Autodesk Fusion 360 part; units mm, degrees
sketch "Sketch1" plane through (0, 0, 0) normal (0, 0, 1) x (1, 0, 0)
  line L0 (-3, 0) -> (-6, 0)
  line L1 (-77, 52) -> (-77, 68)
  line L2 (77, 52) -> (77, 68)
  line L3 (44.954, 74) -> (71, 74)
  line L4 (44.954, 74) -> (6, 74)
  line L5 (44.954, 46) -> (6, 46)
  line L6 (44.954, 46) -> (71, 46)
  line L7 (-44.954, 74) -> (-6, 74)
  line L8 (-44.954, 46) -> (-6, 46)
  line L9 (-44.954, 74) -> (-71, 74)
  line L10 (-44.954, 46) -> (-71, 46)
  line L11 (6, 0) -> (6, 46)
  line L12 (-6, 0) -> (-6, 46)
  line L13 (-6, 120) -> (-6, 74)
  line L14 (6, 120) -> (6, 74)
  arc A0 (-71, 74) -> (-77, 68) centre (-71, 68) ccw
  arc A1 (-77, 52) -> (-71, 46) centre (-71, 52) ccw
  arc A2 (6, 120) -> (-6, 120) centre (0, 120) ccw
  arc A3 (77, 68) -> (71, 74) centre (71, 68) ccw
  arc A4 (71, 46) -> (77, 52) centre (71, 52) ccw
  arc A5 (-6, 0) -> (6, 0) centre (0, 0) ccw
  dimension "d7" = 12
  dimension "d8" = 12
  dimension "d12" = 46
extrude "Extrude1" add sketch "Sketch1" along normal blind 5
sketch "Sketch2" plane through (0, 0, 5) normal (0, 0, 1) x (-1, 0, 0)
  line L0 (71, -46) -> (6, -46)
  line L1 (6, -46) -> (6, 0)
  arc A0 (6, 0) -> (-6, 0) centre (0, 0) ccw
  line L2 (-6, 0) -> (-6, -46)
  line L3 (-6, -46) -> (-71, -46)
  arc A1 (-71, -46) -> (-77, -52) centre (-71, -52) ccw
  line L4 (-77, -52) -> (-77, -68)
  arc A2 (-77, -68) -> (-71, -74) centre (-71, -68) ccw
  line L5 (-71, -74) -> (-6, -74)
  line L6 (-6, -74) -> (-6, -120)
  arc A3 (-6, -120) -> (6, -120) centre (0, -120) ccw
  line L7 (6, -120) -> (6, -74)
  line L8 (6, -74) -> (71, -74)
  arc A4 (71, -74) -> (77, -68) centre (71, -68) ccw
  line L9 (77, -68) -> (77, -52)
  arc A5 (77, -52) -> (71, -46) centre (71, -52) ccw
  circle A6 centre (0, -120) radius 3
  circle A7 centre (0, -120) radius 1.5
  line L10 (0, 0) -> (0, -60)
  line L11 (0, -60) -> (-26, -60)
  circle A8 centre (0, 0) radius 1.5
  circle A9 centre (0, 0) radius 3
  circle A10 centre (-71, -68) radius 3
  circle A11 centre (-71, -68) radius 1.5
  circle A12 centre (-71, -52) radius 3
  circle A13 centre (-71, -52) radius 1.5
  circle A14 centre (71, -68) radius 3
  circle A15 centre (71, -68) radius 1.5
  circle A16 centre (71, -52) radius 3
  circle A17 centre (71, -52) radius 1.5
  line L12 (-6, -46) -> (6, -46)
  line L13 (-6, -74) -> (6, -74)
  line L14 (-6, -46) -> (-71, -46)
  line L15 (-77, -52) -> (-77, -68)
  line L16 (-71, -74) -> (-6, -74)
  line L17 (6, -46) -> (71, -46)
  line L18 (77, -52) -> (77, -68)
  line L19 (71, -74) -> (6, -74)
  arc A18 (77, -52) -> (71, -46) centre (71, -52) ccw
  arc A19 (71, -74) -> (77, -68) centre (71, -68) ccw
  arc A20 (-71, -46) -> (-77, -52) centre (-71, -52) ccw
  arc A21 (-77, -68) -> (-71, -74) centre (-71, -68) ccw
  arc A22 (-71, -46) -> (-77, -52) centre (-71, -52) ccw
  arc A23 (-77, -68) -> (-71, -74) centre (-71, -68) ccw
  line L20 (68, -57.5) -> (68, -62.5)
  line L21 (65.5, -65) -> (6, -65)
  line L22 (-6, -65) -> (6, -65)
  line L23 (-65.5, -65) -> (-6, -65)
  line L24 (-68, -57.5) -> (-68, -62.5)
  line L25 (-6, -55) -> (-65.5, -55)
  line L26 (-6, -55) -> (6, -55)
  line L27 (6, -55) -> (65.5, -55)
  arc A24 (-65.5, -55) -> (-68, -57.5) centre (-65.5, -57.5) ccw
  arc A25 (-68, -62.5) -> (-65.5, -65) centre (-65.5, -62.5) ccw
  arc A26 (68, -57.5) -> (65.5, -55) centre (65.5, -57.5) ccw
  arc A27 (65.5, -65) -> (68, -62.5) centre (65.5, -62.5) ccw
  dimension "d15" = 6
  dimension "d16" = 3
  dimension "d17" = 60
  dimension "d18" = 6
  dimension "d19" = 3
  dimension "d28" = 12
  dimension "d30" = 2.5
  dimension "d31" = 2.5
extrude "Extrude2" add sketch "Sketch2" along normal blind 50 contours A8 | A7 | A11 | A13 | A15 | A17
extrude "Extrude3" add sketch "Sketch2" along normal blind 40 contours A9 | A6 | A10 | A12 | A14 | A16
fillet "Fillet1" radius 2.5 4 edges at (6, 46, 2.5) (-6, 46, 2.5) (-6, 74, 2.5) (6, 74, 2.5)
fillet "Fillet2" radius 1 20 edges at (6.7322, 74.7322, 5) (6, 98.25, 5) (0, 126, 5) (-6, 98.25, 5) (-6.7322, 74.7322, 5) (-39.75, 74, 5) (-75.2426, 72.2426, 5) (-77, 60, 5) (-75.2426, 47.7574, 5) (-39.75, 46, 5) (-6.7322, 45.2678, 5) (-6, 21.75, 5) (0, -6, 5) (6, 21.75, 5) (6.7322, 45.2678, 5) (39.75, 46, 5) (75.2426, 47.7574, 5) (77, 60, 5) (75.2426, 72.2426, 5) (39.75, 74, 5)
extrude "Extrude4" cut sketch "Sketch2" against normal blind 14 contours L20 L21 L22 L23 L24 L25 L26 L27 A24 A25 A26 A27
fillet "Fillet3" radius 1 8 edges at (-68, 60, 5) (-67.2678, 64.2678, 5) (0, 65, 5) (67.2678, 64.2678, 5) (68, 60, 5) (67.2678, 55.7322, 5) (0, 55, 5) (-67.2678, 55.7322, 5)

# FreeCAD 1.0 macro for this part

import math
import FreeCAD as App
import Part
import Sketcher
from FreeCAD import Vector


def edges_at(feature, points):
    """Names of the edges that pass closest to the given points."""
    edges = feature.Shape.Edges
    near = lambda p: min(range(len(edges)), key=lambda i: edges[i].distToShape(Part.Vertex(*p))[0])
    return sorted({f"Edge{near(p) + 1}" for p in points})

doc = App.newDocument("Part")
params = doc.addObject("Spreadsheet::Sheet", "Params")
for row, (alias, value) in enumerate([
    ("sketch1_radius", "6 mm"),
    ("sketch1_height", "46 mm"),
    ("sketch1_width", "65 mm"),
    ("sketch1_height2", "16 mm"),
    ("pad1_length", "5 mm"),
    ("sketch2_diameter", "3 mm"),
    ("pad2_length", "50 mm"),
    ("sketch3_diameter", "6 mm"),
    ("sketch3_diameter2", "3 mm"),
    ("pad3_length", "40 mm"),
    ("fillet_radius", "2.5 mm"),
    ("fillet2_radius", "1 mm"),
    ("sketch4_radius", "2.5 mm"),
    ("sketch4_width", "131 mm"),
    ("sketch4_height", "5 mm"),
    ("pocket1_length", "14 mm"),
    ("fillet3_radius", "1 mm"),
], start=1):
    params.set(f"A{row}", alias)
    params.set(f"B{row}", "=" + value)
    params.setAlias(f"B{row}", alias)

body = doc.addObject("PartDesign::Body", "Body")

sketch1 = body.newObject("Sketcher::SketchObject", "Sketch")
sketch1.AttachmentSupport = (doc.getObject("XY_Plane"), [""])
sketch1.MapMode = "FlatFace"
sketch1.addGeometry(Part.LineSegment(Vector(-77, 68, 0), Vector(-77, 52, 0)), False)
sketch1.addGeometry(Part.ArcOfCircle(Part.Circle(Vector(-71, 52, 0), Vector(0, 0, 1), 6), math.radians(180), math.radians(270)), False)
sketch1.addGeometry(Part.LineSegment(Vector(-71, 46, 0), Vector(-6, 46, 0)), False)
sketch1.addGeometry(Part.LineSegment(Vector(-6, 46, 0), Vector(-6, 0, 0)), False)
sketch1.addGeometry(Part.ArcOfCircle(Part.Circle(Vector(0, 0, 0), Vector(0, 0, 1), 6), math.radians(180), math.radians(360)), False)
sketch1.addGeometry(Part.LineSegment(Vector(6, 0, 0), Vector(6, 46, 0)), False)
sketch1.addGeometry(Part.LineSegment(Vector(6, 46, 0), Vector(71, 46, 0)), False)
sketch1.addGeometry(Part.ArcOfCircle(Part.Circle(Vector(71, 52, 0), Vector(0, 0, 1), 6), math.radians(-90), math.radians(0)), False)
sketch1.addGeometry(Part.LineSegment(Vector(77, 52, 0), Vector(77, 68, 0)), False)
sketch1.addGeometry(Part.ArcOfCircle(Part.Circle(Vector(71, 68, 0), Vector(0, 0, 1), 6), math.radians(0), math.radians(90)), False)
sketch1.addGeometry(Part.LineSegment(Vector(71, 74, 0), Vector(6, 74, 0)), False)
sketch1.addGeometry(Part.LineSegment(Vector(6, 74, 0), Vector(6, 120, 0)), False)
sketch1.addGeometry(Part.ArcOfCircle(Part.Circle(Vector(0, 120, 0), Vector(0, 0, 1), 6), math.radians(0), math.radians(180)), False)
sketch1.addGeometry(Part.LineSegment(Vector(-6, 120, 0), Vector(-6, 74, 0)), False)
sketch1.addGeometry(Part.LineSegment(Vector(-6, 74, 0), Vector(-71, 74, 0)), False)
sketch1.addGeometry(Part.ArcOfCircle(Part.Circle(Vector(-71, 68, 0), Vector(0, 0, 1), 6), math.radians(90), math.radians(180)), False)
sketch1.addConstraint(Sketcher.Constraint("Tangent", 0, 2, 1, 1))
sketch1.addConstraint(Sketcher.Constraint("Tangent", 1, 2, 2, 1))
sketch1.addConstraint(Sketcher.Constraint("Coincident", 2, 2, 3, 1))
sketch1.addConstraint(Sketcher.Constraint("Tangent", 3, 2, 4, 1))
sketch1.addConstraint(Sketcher.Constraint("Tangent", 4, 2, 5, 1))
sketch1.addConstraint(Sketcher.Constraint("Coincident", 5, 2, 6, 1))
sketch1.addConstraint(Sketcher.Constraint("Tangent", 6, 2, 7, 1))
sketch1.addConstraint(Sketcher.Constraint("Tangent", 7, 2, 8, 1))
sketch1.addConstraint(Sketcher.Constraint("Tangent", 8, 2, 9, 1))
sketch1.addConstraint(Sketcher.Constraint("Tangent", 9, 2, 10, 1))
sketch1.addConstraint(Sketcher.Constraint("Coincident", 10, 2, 11, 1))
sketch1.addConstraint(Sketcher.Constraint("Tangent", 11, 2, 12, 1))
sketch1.addConstraint(Sketcher.Constraint("Tangent", 12, 2, 13, 1))
sketch1.addConstraint(Sketcher.Constraint("Coincident", 13, 2, 14, 1))
sketch1.addConstraint(Sketcher.Constraint("Tangent", 14, 2, 15, 1))
sketch1.addConstraint(Sketcher.Constraint("Tangent", 15, 2, 0, 1))
sketch1.addConstraint(Sketcher.Constraint("Vertical", 0))
sketch1.addConstraint(Sketcher.Constraint("Horizontal", 2))
sketch1.addConstraint(Sketcher.Constraint("Vertical", 3))
sketch1.addConstraint(Sketcher.Constraint("Vertical", 5))
sketch1.addConstraint(Sketcher.Constraint("Horizontal", 6))
sketch1.addConstraint(Sketcher.Constraint("Vertical", 8))
sketch1.addConstraint(Sketcher.Constraint("Horizontal", 10))
sketch1.addConstraint(Sketcher.Constraint("Vertical", 11))
sketch1.addConstraint(Sketcher.Constraint("Vertical", 13))
sketch1.addConstraint(Sketcher.Constraint("Horizontal", 14))
sketch1.addConstraint(Sketcher.Constraint("Coincident", 4, 3, -1, 1))
sketch1.addConstraint(Sketcher.Constraint("Equal", 1, 4))
sketch1.addConstraint(Sketcher.Constraint("Equal", 4, 7))
sketch1.addConstraint(Sketcher.Constraint("Equal", 7, 9))
sketch1.addConstraint(Sketcher.Constraint("Equal", 9, 12))
sketch1.addConstraint(Sketcher.Constraint("Equal", 12, 15))
sketch1.addConstraint(Sketcher.Constraint("Symmetric", 1, 3, 7, 3, -2))
sketch1.addConstraint(Sketcher.Constraint("Symmetric", 10, 2, 13, 2, -2))
sketch1.addConstraint(Sketcher.Constraint("Equal", 5, 11))
sketch1.addConstraint(Sketcher.Constraint("Radius", 1, 6.0))
sketch1.addConstraint(Sketcher.Constraint("DistanceY", 3, 2, 3, 1, 46.0))
sketch1.addConstraint(Sketcher.Constraint("DistanceX", 2, 1, 2, 2, 65.0))
sketch1.addConstraint(Sketcher.Constraint("DistanceY", 0, 2, 0, 1, 16.0))
sketch1.setExpression("Constraints[35]", "Params.sketch1_radius")
sketch1.setExpression("Constraints[36]", "Params.sketch1_height")
sketch1.setExpression("Constraints[37]", "Params.sketch1_width")
sketch1.setExpression("Constraints[38]", "Params.sketch1_height2")
pad1 = body.newObject("PartDesign::Pad", "Pad")
pad1.Profile = sketch1
pad1.setExpression("Length", "Params.pad1_length")

sketch2 = body.newObject("Sketcher::SketchObject", "Sketch001")
sketch2.AttachmentSupport = (doc.getObject("XY_Plane"), [""])
sketch2.MapMode = "FlatFace"
sketch2.AttachmentOffset = App.Placement(Vector(0, 0, 5), App.Rotation())
sketch2.addGeometry(Part.Circle(Vector(0, 0, 0), Vector(0, 0, 1), 1.5), False)
sketch2.addGeometry(Part.Circle(Vector(0, 120, 0), Vector(0, 0, 1), 1.5), False)
sketch2.addGeometry(Part.Circle(Vector(71, 68, 0), Vector(0, 0, 1), 1.5), False)
sketch2.addGeometry(Part.Circle(Vector(71, 52, 0), Vector(0, 0, 1), 1.5), False)
sketch2.addGeometry(Part.Circle(Vector(-71, 68, 0), Vector(0, 0, 1), 1.5), False)
sketch2.addGeometry(Part.Circle(Vector(-71, 52, 0), Vector(0, 0, 1), 1.5), False)
sketch2.addConstraint(Sketcher.Constraint("Coincident", 0, 3, -1, 1))
sketch2.addConstraint(Sketcher.Constraint("Equal", 0, 1))
sketch2.addConstraint(Sketcher.Constraint("Equal", 1, 2))
sketch2.addConstraint(Sketcher.Constraint("Equal", 2, 3))
sketch2.addConstraint(Sketcher.Constraint("Equal", 3, 4))
sketch2.addConstraint(Sketcher.Constraint("Equal", 4, 5))
sketch2.addConstraint(Sketcher.Constraint("Symmetric", 2, 3, 4, 3, -2))
sketch2.addConstraint(Sketcher.Constraint("Symmetric", 3, 3, 5, 3, -2))
sketch2.addConstraint(Sketcher.Constraint("PointOnObject", 1, 3, -2))
sketch2.addConstraint(Sketcher.Constraint("Vertical", 2, 3, 3, 3))
sketch2.addConstraint(Sketcher.Constraint("Diameter", 0, 3.0))
sketch2.addConstraint(Sketcher.Constraint("DistanceY", -1, 1, 1, 3, 120.0))
sketch2.addConstraint(Sketcher.Constraint("DistanceX", -1, 1, 2, 3, 71.0))
sketch2.addConstraint(Sketcher.Constraint("DistanceY", -1, 1, 2, 3, 68.0))
sketch2.addConstraint(Sketcher.Constraint("DistanceY", -1, 1, 3, 3, 52.0))
sketch2.setExpression("Constraints[10]", "Params.sketch2_diameter")
pad2 = body.newObject("PartDesign::Pad", "Pad001")
pad2.Profile = sketch2
pad2.setExpression("Length", "Params.pad2_length")

sketch3 = body.newObject("Sketcher::SketchObject", "Sketch002")
sketch3.AttachmentSupport = (doc.getObject("XY_Plane"), [""])
sketch3.MapMode = "FlatFace"
sketch3.AttachmentOffset = App.Placement(Vector(0, 0, 5), App.Rotation())
sketch3.addGeometry(Part.Circle(Vector(0, 0, 0), Vector(0, 0, 1), 3), False)
sketch3.addGeometry(Part.Circle(Vector(0, 0, 0), Vector(0, 0, 1), 1.5), False)
sketch3.addGeometry(Part.Circle(Vector(0, 120, 0), Vector(0, 0, 1), 3), False)
sketch3.addGeometry(Part.Circle(Vector(0, 120, 0), Vector(0, 0, 1), 1.5), False)
sketch3.addGeometry(Part.Circle(Vector(71, 68, 0), Vector(0, 0, 1), 3), False)
sketch3.addGeometry(Part.Circle(Vector(71, 68, 0), Vector(0, 0, 1), 1.5), False)
sketch3.addGeometry(Part.Circle(Vector(71, 52, 0), Vector(0, 0, 1), 3), False)
sketch3.addGeometry(Part.Circle(Vector(71, 52, 0), Vector(0, 0, 1), 1.5), False)
sketch3.addGeometry(Part.Circle(Vector(-71, 68, 0), Vector(0, 0, 1), 3), False)
sketch3.addGeometry(Part.Circle(Vector(-71, 68, 0), Vector(0, 0, 1), 1.5), False)
sketch3.addGeometry(Part.Circle(Vector(-71, 52, 0), Vector(0, 0, 1), 3), False)
sketch3.addGeometry(Part.Circle(Vector(-71, 52, 0), Vector(0, 0, 1), 1.5), False)
sketch3.addConstraint(Sketcher.Constraint("Coincident", 0, 3, -1, 1))
sketch3.addConstraint(Sketcher.Constraint("Coincident", 1, 3, -1, 1))
sketch3.addConstraint(Sketcher.Constraint("Coincident", 3, 3, 2, 3))
sketch3.addConstraint(Sketcher.Constraint("Coincident", 5, 3, 4, 3))
sketch3.addConstraint(Sketcher.Constraint("Coincident", 7, 3, 6, 3))
sketch3.addConstraint(Sketcher.Constraint("Coincident", 9, 3, 8, 3))
sketch3.addConstraint(Sketcher.Constraint("Coincident", 11, 3, 10, 3))
sketch3.addConstraint(Sketcher.Constraint("Equal", 0, 2))
sketch3.addConstraint(Sketcher.Constraint("Equal", 1, 3))
sketch3.addConstraint(Sketcher.Constraint("Equal", 2, 4))
sketch3.addConstraint(Sketcher.Constraint("Equal", 3, 5))
sketch3.addConstraint(Sketcher.Constraint("Equal", 4, 6))
sketch3.addConstraint(Sketcher.Constraint("Equal", 5, 7))
sketch3.addConstraint(Sketcher.Constraint("Equal", 6, 8))
sketch3.addConstraint(Sketcher.Constraint("Equal", 7, 9))
sketch3.addConstraint(Sketcher.Constraint("Equal", 8, 10))
sketch3.addConstraint(Sketcher.Constraint("Equal", 9, 11))
sketch3.addConstraint(Sketcher.Constraint("Symmetric", 4, 3, 8, 3, -2))
sketch3.addConstraint(Sketcher.Constraint("Symmetric", 6, 3, 10, 3, -2))
sketch3.addConstraint(Sketcher.Constraint("PointOnObject", 2, 3, -2))
sketch3.addConstraint(Sketcher.Constraint("Vertical", 5, 3, 6, 3))
sketch3.addConstraint(Sketcher.Constraint("Diameter", 0, 6.0))
sketch3.addConstraint(Sketcher.Constraint("Diameter", 1, 3.0))
sketch3.addConstraint(Sketcher.Constraint("DistanceY", -1, 1, 2, 3, 120.0))
sketch3.addConstraint(Sketcher.Constraint("DistanceX", -1, 1, 4, 3, 71.0))
sketch3.addConstraint(Sketcher.Constraint("DistanceY", -1, 1, 4, 3, 68.0))
sketch3.addConstraint(Sketcher.Constraint("DistanceY", -1, 1, 6, 3, 52.0))
sketch3.setExpression("Constraints[21]", "Params.sketch3_diameter")
sketch3.setExpression("Constraints[22]", "Params.sketch3_diameter2")
pad3 = body.newObject("PartDesign::Pad", "Pad002")
pad3.Profile = sketch3
pad3.setExpression("Length", "Params.pad3_length")
doc.recompute()

fillet = body.newObject("PartDesign::Fillet", "Fillet")
fillet.Base = (pad3, edges_at(pad3, [
    (6, 46, 2.5),
    (-6, 46, 2.5),
    (-6, 74, 2.5),
    (6, 74, 2.5),
]))
fillet.setExpression("Radius", "Params.fillet_radius")
doc.recompute()

fillet2 = body.newObject("PartDesign::Fillet", "Fillet001")
fillet2.Base = (fillet, edges_at(fillet, [
    (6.732, 74.732, 5),
    (6, 98.25, 5),
    (0, 126, 5),
    (-6, 98.25, 5),
    (-6.732, 74.732, 5),
    (-39.75, 74, 5),
    (-75.243, 72.243, 5),
    (-77, 60, 5),
    (-75.243, 47.757, 5),
    (-39.75, 46, 5),
    (-6.732, 45.268, 5),
    (-6, 21.75, 5),
    (0, -6, 5),
    (6, 21.75, 5),
    (6.732, 45.268, 5),
    (39.75, 46, 5),
    (75.243, 47.757, 5),
    (77, 60, 5),
    (75.243, 72.243, 5),
    (39.75, 74, 5),
]))
fillet2.setExpression("Radius", "Params.fillet2_radius")

sketch4 = body.newObject("Sketcher::SketchObject", "Sketch003")
sketch4.AttachmentSupport = (doc.getObject("XY_Plane"), [""])
sketch4.MapMode = "FlatFace"
sketch4.AttachmentOffset = App.Placement(Vector(0, 0, 5), App.Rotation())
sketch4.addGeometry(Part.LineSegment(Vector(-65.5, 55, 0), Vector(65.5, 55, 0)), False)
sketch4.addGeometry(Part.ArcOfCircle(Part.Circle(Vector(65.5, 57.5, 0), Vector(0, 0, 1), 2.5), math.radians(-90), math.radians(0)), False)
sketch4.addGeometry(Part.LineSegment(Vector(68, 57.5, 0), Vector(68, 62.5, 0)), False)
sketch4.addGeometry(Part.ArcOfCircle(Part.Circle(Vector(65.5, 62.5, 0), Vector(0, 0, 1), 2.5), math.radians(0), math.radians(90)), False)
sketch4.addGeometry(Part.LineSegment(Vector(65.5, 65, 0), Vector(-65.5, 65, 0)), False)
sketch4.addGeometry(Part.ArcOfCircle(Part.Circle(Vector(-65.5, 62.5, 0), Vector(0, 0, 1), 2.5), math.radians(90), math.radians(180)), False)
sketch4.addGeometry(Part.LineSegment(Vector(-68, 62.5, 0), Vector(-68, 57.5, 0)), False)
sketch4.addGeometry(Part.ArcOfCircle(Part.Circle(Vector(-65.5, 57.5, 0), Vector(0, 0, 1), 2.5), math.radians(180), math.radians(270)), False)
sketch4.addConstraint(Sketcher.Constraint("Tangent", 0, 2, 1, 1))
sketch4.addConstraint(Sketcher.Constraint("Tangent", 1, 2, 2, 1))
sketch4.addConstraint(Sketcher.Constraint("Tangent", 2, 2, 3, 1))
sketch4.addConstraint(Sketcher.Constraint("Tangent", 3, 2, 4, 1))
sketch4.addConstraint(Sketcher.Constraint("Tangent", 4, 2, 5, 1))
sketch4.addConstraint(Sketcher.Constraint("Tangent", 5, 2, 6, 1))
sketch4.addConstraint(Sketcher.Constraint("Tangent", 6, 2, 7, 1))
sketch4.addConstraint(Sketcher.Constraint("Tangent", 7, 2, 0, 1))
sketch4.addConstraint(Sketcher.Constraint("Horizontal", 0))
sketch4.addConstraint(Sketcher.Constraint("Vertical", 2))
sketch4.addConstraint(Sketcher.Constraint("Horizontal", 4))
sketch4.addConstraint(Sketcher.Constraint("Vertical", 6))
sketch4.addConstraint(Sketcher.Constraint("Equal", 1, 3))
sketch4.addConstraint(Sketcher.Constraint("Equal", 3, 5))
sketch4.addConstraint(Sketcher.Constraint("Equal", 5, 7))
sketch4.addConstraint(Sketcher.Constraint("Radius", 1, 2.5))
sketch4.addConstraint(Sketcher.Constraint("DistanceX", 0, 1, 0, 2, 131.0))
sketch4.addConstraint(Sketcher.Constraint("DistanceY", 2, 1, 2, 2, 5.0))
sketch4.addConstraint(Sketcher.Constraint("DistanceY", -1, 1, 0, 2, 55.0))
sketch4.addConstraint(Sketcher.Constraint("DistanceX", -1, 1, 1, 2, 68.0))
sketch4.setExpression("Constraints[15]", "Params.sketch4_radius")
sketch4.setExpression("Constraints[16]", "Params.sketch4_width")
sketch4.setExpression("Constraints[17]", "Params.sketch4_height")
pocket1 = body.newObject("PartDesign::Pocket", "Pocket")
pocket1.Profile = sketch4
pocket1.setExpression("Length", "Params.pocket1_length")
doc.recompute()

fillet3 = body.newObject("PartDesign::Fillet", "Fillet002")
fillet3.Base = (pocket1, edges_at(pocket1, [
    (-68, 60, 5),
    (-67.268, 64.268, 5),
    (0, 65, 5),
    (67.268, 64.268, 5),
    (68, 60, 5),
    (67.268, 55.732, 5),
    (0, 55, 5),
    (-67.268, 55.732, 5),
]))
fillet3.setExpression("Radius", "Params.fillet3_radius")

doc.recompute()
